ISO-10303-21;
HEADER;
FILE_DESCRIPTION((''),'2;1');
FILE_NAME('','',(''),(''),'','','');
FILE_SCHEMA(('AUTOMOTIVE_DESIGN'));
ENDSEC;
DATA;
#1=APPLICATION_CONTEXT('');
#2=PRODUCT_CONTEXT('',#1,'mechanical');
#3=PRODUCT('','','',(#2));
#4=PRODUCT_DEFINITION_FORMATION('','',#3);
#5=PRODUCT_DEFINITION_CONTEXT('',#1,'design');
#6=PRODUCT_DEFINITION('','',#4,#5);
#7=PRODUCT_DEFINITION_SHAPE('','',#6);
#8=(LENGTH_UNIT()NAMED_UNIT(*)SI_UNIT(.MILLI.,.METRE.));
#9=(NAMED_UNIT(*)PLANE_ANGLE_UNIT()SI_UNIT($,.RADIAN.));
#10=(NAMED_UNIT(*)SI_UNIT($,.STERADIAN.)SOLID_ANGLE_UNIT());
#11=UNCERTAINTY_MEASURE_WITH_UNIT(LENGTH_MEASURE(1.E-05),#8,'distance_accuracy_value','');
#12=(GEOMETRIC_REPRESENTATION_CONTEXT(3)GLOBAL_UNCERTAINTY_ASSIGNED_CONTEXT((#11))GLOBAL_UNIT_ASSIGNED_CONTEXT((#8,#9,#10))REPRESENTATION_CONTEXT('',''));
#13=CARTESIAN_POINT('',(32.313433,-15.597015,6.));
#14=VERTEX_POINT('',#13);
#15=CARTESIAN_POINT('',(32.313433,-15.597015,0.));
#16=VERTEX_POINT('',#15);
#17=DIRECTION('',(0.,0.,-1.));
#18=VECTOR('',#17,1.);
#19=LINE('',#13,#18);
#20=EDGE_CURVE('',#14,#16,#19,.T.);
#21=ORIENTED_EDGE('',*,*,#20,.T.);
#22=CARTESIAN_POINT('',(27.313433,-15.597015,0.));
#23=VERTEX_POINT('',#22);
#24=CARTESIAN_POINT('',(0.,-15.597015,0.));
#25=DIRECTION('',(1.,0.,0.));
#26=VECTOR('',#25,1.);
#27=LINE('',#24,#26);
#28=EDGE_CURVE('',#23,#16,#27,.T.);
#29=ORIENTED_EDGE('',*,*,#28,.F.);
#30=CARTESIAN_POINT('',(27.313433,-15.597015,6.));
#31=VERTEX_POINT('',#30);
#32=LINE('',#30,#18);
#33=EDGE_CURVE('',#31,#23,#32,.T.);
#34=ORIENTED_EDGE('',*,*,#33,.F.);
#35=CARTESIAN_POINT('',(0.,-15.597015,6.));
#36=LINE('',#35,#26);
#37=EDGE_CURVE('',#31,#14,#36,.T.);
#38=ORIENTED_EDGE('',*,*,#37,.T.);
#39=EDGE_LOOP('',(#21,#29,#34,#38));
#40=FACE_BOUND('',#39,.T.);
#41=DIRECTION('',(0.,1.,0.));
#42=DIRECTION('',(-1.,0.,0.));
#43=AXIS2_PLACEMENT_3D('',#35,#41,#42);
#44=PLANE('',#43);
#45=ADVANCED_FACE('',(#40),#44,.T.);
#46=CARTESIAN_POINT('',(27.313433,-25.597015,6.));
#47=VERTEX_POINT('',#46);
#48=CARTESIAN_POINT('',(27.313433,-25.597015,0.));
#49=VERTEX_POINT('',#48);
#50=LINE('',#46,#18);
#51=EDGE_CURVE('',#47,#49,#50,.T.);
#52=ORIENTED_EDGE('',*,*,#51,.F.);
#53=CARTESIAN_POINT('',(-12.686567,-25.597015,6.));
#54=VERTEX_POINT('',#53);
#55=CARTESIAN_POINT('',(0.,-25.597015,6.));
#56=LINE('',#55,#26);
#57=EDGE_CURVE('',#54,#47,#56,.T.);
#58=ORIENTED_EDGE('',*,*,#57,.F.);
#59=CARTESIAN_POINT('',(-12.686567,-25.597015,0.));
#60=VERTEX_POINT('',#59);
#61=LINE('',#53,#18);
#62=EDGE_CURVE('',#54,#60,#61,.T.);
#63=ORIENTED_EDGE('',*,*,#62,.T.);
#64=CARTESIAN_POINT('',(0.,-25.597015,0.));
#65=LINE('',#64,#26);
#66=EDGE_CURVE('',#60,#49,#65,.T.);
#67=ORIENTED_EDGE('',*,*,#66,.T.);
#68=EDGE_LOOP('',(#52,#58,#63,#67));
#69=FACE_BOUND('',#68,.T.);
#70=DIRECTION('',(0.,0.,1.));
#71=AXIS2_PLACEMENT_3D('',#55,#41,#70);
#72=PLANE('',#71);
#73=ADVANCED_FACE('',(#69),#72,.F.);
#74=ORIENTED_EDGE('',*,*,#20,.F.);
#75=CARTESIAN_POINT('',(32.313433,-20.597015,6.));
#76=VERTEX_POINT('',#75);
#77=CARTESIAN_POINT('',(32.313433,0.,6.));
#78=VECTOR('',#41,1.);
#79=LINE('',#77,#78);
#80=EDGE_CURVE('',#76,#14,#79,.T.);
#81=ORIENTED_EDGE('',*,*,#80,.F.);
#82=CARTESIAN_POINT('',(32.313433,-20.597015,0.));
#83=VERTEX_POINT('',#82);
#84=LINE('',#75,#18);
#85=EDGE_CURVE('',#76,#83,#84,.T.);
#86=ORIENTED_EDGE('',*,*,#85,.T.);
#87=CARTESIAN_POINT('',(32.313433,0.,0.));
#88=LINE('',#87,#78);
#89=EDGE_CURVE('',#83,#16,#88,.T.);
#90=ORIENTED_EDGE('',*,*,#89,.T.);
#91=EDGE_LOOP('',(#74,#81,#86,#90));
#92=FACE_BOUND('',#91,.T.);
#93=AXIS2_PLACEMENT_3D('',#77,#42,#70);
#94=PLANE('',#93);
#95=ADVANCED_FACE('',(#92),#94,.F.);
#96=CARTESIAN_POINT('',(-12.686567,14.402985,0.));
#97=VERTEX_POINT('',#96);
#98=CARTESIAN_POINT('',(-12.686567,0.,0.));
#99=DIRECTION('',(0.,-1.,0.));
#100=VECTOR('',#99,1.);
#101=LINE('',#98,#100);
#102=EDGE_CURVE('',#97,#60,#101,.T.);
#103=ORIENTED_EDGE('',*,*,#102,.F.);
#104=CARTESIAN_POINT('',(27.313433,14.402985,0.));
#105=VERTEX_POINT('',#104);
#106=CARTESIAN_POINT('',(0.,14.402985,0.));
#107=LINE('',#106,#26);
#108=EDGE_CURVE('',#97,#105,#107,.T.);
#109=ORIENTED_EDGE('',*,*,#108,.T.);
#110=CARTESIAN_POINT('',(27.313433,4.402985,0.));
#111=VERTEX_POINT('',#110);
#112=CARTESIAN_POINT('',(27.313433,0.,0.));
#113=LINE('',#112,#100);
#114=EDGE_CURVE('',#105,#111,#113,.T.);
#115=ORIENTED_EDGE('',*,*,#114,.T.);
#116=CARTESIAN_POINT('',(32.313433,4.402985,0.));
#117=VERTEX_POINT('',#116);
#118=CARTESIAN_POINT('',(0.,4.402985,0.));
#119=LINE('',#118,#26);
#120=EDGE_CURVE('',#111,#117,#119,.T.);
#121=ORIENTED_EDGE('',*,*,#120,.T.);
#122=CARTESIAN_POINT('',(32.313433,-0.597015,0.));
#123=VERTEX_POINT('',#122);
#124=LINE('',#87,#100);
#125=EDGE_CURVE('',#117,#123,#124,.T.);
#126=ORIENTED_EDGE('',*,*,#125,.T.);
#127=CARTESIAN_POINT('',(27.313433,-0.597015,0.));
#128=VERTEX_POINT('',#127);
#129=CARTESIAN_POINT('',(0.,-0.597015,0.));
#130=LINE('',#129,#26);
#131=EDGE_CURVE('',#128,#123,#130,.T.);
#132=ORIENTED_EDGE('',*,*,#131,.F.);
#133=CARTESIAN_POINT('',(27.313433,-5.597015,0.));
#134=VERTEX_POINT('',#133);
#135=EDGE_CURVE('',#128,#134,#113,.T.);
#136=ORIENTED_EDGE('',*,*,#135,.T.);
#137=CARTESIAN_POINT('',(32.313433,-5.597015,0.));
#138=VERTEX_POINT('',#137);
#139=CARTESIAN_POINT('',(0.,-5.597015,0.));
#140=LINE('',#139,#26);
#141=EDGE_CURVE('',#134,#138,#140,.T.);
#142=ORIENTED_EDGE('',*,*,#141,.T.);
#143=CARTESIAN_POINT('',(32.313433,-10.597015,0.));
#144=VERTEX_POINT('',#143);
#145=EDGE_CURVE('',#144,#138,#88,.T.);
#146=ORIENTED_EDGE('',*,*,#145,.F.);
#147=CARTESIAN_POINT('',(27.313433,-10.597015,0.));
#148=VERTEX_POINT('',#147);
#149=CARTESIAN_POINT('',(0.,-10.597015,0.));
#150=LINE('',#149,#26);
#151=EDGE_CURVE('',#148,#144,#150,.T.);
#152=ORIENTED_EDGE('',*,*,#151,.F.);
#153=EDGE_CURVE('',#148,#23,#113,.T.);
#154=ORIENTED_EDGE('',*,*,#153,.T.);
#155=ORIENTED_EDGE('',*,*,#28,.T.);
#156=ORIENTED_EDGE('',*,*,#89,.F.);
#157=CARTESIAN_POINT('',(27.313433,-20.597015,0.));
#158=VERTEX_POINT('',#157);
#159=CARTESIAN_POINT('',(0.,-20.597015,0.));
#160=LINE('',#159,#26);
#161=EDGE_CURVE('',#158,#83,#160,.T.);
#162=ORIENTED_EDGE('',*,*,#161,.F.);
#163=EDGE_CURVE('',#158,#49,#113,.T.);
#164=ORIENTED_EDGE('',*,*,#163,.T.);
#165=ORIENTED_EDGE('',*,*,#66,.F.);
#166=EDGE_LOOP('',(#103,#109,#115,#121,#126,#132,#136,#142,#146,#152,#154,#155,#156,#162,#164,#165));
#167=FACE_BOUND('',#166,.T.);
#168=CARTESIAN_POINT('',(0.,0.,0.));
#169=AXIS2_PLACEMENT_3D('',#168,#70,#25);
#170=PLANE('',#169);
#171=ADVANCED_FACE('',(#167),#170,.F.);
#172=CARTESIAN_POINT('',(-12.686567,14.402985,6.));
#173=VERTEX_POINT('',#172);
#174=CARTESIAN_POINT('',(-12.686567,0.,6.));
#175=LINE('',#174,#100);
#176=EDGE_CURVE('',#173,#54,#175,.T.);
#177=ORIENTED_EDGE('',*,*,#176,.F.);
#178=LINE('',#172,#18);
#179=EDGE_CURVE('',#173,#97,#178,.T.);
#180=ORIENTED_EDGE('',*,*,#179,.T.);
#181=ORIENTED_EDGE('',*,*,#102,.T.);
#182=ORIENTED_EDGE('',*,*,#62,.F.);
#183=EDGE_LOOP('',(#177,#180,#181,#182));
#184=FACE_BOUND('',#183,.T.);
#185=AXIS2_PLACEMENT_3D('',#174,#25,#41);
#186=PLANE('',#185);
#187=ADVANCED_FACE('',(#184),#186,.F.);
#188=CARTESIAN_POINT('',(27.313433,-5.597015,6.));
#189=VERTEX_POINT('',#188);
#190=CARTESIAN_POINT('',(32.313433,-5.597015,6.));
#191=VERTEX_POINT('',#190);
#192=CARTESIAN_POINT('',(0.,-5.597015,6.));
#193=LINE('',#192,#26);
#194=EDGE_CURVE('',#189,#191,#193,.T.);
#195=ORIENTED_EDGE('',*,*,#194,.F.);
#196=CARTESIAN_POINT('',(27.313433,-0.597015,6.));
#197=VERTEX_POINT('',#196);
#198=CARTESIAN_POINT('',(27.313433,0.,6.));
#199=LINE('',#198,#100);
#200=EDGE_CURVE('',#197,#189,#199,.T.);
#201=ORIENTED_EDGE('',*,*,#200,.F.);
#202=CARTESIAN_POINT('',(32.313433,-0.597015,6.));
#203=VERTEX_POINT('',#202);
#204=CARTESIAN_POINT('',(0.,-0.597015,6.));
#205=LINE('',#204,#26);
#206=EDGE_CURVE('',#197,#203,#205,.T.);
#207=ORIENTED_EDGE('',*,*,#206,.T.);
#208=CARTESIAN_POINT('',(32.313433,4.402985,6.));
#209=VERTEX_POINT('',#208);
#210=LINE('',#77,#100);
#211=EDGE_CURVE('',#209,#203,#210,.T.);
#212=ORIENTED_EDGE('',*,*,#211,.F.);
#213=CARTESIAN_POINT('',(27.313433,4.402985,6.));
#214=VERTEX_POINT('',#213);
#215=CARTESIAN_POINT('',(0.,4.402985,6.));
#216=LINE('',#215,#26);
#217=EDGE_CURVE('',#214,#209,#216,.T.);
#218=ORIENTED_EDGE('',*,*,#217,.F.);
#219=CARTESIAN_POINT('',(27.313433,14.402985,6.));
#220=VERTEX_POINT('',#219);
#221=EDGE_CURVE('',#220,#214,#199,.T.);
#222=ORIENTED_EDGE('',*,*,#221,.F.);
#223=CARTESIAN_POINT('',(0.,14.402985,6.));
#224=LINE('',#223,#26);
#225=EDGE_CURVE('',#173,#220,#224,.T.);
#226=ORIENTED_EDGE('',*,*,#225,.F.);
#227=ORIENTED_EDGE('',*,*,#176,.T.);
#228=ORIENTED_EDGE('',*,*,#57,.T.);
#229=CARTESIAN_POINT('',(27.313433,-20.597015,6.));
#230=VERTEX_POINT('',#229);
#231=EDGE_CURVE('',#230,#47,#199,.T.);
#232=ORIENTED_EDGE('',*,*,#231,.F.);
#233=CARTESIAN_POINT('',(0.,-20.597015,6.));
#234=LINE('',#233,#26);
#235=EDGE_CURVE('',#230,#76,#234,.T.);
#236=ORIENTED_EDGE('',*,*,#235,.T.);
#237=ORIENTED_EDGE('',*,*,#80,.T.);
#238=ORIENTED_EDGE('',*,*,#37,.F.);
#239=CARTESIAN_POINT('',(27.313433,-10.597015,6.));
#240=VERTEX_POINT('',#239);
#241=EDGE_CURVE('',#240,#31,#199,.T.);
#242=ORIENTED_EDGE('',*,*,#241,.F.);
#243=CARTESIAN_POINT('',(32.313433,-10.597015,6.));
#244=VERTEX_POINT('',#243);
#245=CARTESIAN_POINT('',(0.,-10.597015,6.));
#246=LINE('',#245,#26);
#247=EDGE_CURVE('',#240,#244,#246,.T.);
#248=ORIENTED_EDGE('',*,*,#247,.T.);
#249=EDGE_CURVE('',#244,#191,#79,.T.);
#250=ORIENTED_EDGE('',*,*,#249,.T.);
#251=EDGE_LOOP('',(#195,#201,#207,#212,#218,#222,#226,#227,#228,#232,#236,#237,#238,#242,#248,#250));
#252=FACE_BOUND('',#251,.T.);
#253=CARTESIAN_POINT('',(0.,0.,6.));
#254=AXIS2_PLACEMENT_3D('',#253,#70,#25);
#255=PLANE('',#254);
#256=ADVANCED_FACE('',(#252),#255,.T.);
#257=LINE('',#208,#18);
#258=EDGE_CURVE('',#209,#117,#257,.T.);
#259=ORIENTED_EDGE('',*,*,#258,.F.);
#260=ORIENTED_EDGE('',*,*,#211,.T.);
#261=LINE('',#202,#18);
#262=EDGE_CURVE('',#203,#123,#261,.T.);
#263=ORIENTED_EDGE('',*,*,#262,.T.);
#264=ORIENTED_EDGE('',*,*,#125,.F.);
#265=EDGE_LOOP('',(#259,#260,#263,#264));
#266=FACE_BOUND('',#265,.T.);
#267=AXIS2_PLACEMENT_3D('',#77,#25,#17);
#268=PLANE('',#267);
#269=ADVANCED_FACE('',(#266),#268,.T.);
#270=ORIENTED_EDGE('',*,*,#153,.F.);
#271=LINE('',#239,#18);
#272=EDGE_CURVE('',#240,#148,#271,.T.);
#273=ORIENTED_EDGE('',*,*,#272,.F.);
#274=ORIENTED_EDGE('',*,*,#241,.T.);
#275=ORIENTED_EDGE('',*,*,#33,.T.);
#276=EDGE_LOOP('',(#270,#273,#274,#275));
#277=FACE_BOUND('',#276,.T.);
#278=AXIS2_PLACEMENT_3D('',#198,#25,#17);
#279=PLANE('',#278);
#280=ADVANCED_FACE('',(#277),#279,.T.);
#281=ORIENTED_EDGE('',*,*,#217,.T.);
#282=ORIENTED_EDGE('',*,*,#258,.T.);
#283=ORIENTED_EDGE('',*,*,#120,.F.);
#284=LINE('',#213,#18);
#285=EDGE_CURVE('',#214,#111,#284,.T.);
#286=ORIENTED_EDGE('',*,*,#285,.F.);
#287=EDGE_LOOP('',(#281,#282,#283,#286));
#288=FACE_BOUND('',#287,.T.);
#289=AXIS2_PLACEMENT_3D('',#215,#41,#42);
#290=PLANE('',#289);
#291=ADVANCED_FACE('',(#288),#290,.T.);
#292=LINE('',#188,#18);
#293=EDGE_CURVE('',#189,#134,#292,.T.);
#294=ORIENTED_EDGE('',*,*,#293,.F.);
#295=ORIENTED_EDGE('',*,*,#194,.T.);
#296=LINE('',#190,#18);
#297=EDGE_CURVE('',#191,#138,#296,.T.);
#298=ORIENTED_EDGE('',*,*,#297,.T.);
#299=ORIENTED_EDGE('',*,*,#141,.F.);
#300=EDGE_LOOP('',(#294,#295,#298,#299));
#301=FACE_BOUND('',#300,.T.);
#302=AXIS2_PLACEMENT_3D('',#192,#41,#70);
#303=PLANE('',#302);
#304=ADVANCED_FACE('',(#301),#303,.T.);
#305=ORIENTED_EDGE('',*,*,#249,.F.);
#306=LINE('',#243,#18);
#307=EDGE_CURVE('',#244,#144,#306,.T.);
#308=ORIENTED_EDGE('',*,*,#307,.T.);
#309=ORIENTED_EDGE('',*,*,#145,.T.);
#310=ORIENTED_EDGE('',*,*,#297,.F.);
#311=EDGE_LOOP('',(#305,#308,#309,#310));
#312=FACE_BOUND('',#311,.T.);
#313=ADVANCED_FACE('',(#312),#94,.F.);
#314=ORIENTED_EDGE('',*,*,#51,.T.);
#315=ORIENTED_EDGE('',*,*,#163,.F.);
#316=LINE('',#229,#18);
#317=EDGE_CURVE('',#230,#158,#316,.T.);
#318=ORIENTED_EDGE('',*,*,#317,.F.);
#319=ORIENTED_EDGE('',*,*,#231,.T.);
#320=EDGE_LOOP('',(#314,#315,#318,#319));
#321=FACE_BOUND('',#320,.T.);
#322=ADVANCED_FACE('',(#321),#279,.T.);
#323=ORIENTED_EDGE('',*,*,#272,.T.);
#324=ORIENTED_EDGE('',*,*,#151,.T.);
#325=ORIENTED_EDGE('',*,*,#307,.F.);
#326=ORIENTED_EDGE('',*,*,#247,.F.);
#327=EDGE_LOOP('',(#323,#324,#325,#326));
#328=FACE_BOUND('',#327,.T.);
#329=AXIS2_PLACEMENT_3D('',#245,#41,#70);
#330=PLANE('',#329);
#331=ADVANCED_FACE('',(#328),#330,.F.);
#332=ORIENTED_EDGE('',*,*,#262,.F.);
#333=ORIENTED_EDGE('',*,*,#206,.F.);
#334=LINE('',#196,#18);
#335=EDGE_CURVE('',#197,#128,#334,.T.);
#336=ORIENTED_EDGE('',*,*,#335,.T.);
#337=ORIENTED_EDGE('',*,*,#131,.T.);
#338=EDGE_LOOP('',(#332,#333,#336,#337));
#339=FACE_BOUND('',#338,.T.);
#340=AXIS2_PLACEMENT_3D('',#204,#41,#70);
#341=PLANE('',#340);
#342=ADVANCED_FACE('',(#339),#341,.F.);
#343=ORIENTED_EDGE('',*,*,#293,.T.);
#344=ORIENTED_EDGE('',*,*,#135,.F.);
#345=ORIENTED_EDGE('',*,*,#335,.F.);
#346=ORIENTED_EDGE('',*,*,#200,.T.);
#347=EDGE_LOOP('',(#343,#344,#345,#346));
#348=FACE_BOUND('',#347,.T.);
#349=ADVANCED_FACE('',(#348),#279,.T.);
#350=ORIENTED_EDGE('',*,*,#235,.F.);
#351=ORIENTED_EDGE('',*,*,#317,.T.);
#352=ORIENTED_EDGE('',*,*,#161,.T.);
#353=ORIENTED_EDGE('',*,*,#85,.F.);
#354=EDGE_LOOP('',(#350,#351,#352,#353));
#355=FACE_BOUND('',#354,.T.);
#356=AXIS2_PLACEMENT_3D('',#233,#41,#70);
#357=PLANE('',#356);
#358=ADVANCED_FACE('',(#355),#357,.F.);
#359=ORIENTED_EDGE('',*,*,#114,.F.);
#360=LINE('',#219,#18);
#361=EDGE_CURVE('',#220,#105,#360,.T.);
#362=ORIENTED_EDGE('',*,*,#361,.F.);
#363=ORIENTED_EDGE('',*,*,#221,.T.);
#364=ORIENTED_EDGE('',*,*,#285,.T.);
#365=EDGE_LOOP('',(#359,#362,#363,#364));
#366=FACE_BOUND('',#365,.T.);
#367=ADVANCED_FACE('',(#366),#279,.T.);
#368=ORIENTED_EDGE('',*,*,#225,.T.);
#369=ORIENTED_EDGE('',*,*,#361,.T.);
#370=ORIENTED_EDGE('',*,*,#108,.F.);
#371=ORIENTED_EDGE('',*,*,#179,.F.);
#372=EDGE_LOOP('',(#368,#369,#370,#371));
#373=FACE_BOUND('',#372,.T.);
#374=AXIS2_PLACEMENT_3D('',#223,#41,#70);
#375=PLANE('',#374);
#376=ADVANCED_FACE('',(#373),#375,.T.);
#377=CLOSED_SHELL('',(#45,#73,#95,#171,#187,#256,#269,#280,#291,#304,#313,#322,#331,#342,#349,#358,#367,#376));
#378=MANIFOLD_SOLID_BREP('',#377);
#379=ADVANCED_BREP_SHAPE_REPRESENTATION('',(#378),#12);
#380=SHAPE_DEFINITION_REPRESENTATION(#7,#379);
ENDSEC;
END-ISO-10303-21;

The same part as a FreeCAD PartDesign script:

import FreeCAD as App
import Part
import Sketcher
from FreeCAD import Vector

doc = App.newDocument("Part")
params = doc.addObject("Spreadsheet::Sheet", "Params")
for row, (alias, value) in enumerate([
    ("sketch1_width", "40 mm"),
    ("pad1_length", "6 mm"),
    ("sketch2_width", "5 mm"),
    ("pad2_length", "6 mm"),
], start=1):
    params.set(f"A{row}", alias)
    params.set(f"B{row}", "=" + value)
    params.setAlias(f"B{row}", alias)

body = doc.addObject("PartDesign::Body", "Body")

# Sketch on XY plane
sketch1 = body.newObject("Sketcher::SketchObject", "Sketch")
sketch1.AttachmentSupport = (doc.getObject("XY_Plane"), [""])
sketch1.MapMode = "FlatFace"
sketch1.addGeometry(Part.LineSegment(Vector(-13, 14, 0), Vector(-13, -26, 0)), False)
sketch1.addGeometry(Part.LineSegment(Vector(-13, -26, 0), Vector(27, -26, 0)), False)
sketch1.addGeometry(Part.LineSegment(Vector(27, -26, 0), Vector(27, 14, 0)), False)
sketch1.addGeometry(Part.LineSegment(Vector(27, 14, 0), Vector(-13, 14, 0)), False)
sketch1.addConstraint(Sketcher.Constraint("Coincident", 0, 2, 1, 1))
sketch1.addConstraint(Sketcher.Constraint("Coincident", 1, 2, 2, 1))
sketch1.addConstraint(Sketcher.Constraint("Coincident", 2, 2, 3, 1))
sketch1.addConstraint(Sketcher.Constraint("Coincident", 3, 2, 0, 1))
sketch1.addConstraint(Sketcher.Constraint("Vertical", 0))
sketch1.addConstraint(Sketcher.Constraint("Horizontal", 1))
sketch1.addConstraint(Sketcher.Constraint("Vertical", 2))
sketch1.addConstraint(Sketcher.Constraint("Horizontal", 3))
sketch1.addConstraint(Sketcher.Constraint("Equal", 3, 0))
sketch1.addConstraint(Sketcher.Constraint("DistanceX", 1, 1, 1, 2, 40.0))
sketch1.addConstraint(Sketcher.Constraint("DistanceX", 0, 2, -1, 1, 12.686567))
sketch1.addConstraint(Sketcher.Constraint("DistanceY", 0, 2, -1, 1, 25.597015))
sketch1.setExpression("Constraints[9]", "Params.sketch1_width")
pad1 = body.newObject("PartDesign::Pad", "Pad")
pad1.Profile = sketch1
pad1.setExpression("Length", "Params.pad1_length")

# Sketch on XY plane
sketch2 = body.newObject("Sketcher::SketchObject", "Sketch001")
sketch2.AttachmentSupport = (doc.getObject("XY_Plane"), [""])
sketch2.MapMode = "FlatFace"
sketch2.addGeometry(Part.LineSegment(Vector(27.3, 4.4, 0), Vector(27.3, -0.6, 0)), False)
sketch2.addGeometry(Part.LineSegment(Vector(27.3, -0.6, 0), Vector(32.3, -0.6, 0)), False)
sketch2.addGeometry(Part.LineSegment(Vector(32.3, -0.6, 0), Vector(32.3, 4.4, 0)), False)
sketch2.addGeometry(Part.LineSegment(Vector(32.3, 4.4, 0), Vector(27.3, 4.4, 0)), False)
sketch2.addGeometry(Part.LineSegment(Vector(27.3, -5.6, 0), Vector(27.3, -10.6, 0)), False)
sketch2.addGeometry(Part.LineSegment(Vector(27.3, -10.6, 0), Vector(32.3, -10.6, 0)), False)
sketch2.addGeometry(Part.LineSegment(Vector(32.3, -10.6, 0), Vector(32.3, -5.6, 0)), False)
sketch2.addGeometry(Part.LineSegment(Vector(32.3, -5.6, 0), Vector(27.3, -5.6, 0)), False)
sketch2.addGeometry(Part.LineSegment(Vector(27.3, -15.6, 0), Vector(27.3, -20.6, 0)), False)
sketch2.addGeometry(Part.LineSegment(Vector(27.3, -20.6, 0), Vector(32.3, -20.6, 0)), False)
sketch2.addGeometry(Part.LineSegment(Vector(32.3, -20.6, 0), Vector(32.3, -15.6, 0)), False)
sketch2.addGeometry(Part.LineSegment(Vector(32.3, -15.6, 0), Vector(27.3, -15.6, 0)), False)
sketch2.addConstraint(Sketcher.Constraint("Coincident", 0, 2, 1, 1))
sketch2.addConstraint(Sketcher.Constraint("Coincident", 1, 2, 2, 1))
sketch2.addConstraint(Sketcher.Constraint("Coincident", 2, 2, 3, 1))
sketch2.addConstraint(Sketcher.Constraint("Coincident", 3, 2, 0, 1))
sketch2.addConstraint(Sketcher.Constraint("Coincident", 4, 2, 5, 1))
sketch2.addConstraint(Sketcher.Constraint("Coincident", 5, 2, 6, 1))
sketch2.addConstraint(Sketcher.Constraint("Coincident", 6, 2, 7, 1))
sketch2.addConstraint(Sketcher.Constraint("Coincident", 7, 2, 4, 1))
sketch2.addConstraint(Sketcher.Constraint("Coincident", 8, 2, 9, 1))
sketch2.addConstraint(Sketcher.Constraint("Coincident", 9, 2, 10, 1))
sketch2.addConstraint(Sketcher.Constraint("Coincident", 10, 2, 11, 1))
sketch2.addConstraint(Sketcher.Constraint("Coincident", 11, 2, 8, 1))
sketch2.addConstraint(Sketcher.Constraint("Vertical", 0))
sketch2.addConstraint(Sketcher.Constraint("Horizontal", 1))
sketch2.addConstraint(Sketcher.Constraint("Vertical", 2))
sketch2.addConstraint(Sketcher.Constraint("Horizontal", 3))
sketch2.addConstraint(Sketcher.Constraint("Vertical", 4))
sketch2.addConstraint(Sketcher.Constraint("Horizontal", 5))
sketch2.addConstraint(Sketcher.Constraint("Vertical", 6))
sketch2.addConstraint(Sketcher.Constraint("Horizontal", 7))
sketch2.addConstraint(Sketcher.Constraint("Vertical", 8))
sketch2.addConstraint(Sketcher.Constraint("Horizontal", 9))
sketch2.addConstraint(Sketcher.Constraint("Vertical", 10))
sketch2.addConstraint(Sketcher.Constraint("Horizontal", 11))
sketch2.addConstraint(Sketcher.Constraint("Vertical", 3, 2, 4, 2))
sketch2.addConstraint(Sketcher.Constraint("Vertical", 2, 2, 5, 2))
sketch2.addConstraint(Sketcher.Constraint("Vertical", 7, 2, 8, 2))
sketch2.addConstraint(Sketcher.Constraint("Vertical", 6, 2, 9, 2))
sketch2.addConstraint(Sketcher.Constraint("Equal", 11, 0))
sketch2.addConstraint(Sketcher.Constraint("Equal", 2, 4))
sketch2.addConstraint(Sketcher.Constraint("Equal", 6, 8))
sketch2.addConstraint(Sketcher.Constraint("DistanceX", 1, 1, 1, 2, 5.0))
sketch2.addConstraint(Sketcher.Constraint("DistanceY", 4, 2, 0, 2, 10.0))
sketch2.addConstraint(Sketcher.Constraint("DistanceY", 8, 2, 4, 2, 10.0))
sketch2.addConstraint(Sketcher.Constraint("DistanceX", -1, 1, 0, 2, 27.313433))
sketch2.addConstraint(Sketcher.Constraint("DistanceY", 0, 2, -1, 1, 0.597015))
sketch2.setExpression("Constraints[31]", "Params.sketch2_width")
pad2 = body.newObject("PartDesign::Pad", "Pad001")
pad2.Profile = sketch2
pad2.setExpression("Length", "Params.pad2_length")

doc.recompute()
